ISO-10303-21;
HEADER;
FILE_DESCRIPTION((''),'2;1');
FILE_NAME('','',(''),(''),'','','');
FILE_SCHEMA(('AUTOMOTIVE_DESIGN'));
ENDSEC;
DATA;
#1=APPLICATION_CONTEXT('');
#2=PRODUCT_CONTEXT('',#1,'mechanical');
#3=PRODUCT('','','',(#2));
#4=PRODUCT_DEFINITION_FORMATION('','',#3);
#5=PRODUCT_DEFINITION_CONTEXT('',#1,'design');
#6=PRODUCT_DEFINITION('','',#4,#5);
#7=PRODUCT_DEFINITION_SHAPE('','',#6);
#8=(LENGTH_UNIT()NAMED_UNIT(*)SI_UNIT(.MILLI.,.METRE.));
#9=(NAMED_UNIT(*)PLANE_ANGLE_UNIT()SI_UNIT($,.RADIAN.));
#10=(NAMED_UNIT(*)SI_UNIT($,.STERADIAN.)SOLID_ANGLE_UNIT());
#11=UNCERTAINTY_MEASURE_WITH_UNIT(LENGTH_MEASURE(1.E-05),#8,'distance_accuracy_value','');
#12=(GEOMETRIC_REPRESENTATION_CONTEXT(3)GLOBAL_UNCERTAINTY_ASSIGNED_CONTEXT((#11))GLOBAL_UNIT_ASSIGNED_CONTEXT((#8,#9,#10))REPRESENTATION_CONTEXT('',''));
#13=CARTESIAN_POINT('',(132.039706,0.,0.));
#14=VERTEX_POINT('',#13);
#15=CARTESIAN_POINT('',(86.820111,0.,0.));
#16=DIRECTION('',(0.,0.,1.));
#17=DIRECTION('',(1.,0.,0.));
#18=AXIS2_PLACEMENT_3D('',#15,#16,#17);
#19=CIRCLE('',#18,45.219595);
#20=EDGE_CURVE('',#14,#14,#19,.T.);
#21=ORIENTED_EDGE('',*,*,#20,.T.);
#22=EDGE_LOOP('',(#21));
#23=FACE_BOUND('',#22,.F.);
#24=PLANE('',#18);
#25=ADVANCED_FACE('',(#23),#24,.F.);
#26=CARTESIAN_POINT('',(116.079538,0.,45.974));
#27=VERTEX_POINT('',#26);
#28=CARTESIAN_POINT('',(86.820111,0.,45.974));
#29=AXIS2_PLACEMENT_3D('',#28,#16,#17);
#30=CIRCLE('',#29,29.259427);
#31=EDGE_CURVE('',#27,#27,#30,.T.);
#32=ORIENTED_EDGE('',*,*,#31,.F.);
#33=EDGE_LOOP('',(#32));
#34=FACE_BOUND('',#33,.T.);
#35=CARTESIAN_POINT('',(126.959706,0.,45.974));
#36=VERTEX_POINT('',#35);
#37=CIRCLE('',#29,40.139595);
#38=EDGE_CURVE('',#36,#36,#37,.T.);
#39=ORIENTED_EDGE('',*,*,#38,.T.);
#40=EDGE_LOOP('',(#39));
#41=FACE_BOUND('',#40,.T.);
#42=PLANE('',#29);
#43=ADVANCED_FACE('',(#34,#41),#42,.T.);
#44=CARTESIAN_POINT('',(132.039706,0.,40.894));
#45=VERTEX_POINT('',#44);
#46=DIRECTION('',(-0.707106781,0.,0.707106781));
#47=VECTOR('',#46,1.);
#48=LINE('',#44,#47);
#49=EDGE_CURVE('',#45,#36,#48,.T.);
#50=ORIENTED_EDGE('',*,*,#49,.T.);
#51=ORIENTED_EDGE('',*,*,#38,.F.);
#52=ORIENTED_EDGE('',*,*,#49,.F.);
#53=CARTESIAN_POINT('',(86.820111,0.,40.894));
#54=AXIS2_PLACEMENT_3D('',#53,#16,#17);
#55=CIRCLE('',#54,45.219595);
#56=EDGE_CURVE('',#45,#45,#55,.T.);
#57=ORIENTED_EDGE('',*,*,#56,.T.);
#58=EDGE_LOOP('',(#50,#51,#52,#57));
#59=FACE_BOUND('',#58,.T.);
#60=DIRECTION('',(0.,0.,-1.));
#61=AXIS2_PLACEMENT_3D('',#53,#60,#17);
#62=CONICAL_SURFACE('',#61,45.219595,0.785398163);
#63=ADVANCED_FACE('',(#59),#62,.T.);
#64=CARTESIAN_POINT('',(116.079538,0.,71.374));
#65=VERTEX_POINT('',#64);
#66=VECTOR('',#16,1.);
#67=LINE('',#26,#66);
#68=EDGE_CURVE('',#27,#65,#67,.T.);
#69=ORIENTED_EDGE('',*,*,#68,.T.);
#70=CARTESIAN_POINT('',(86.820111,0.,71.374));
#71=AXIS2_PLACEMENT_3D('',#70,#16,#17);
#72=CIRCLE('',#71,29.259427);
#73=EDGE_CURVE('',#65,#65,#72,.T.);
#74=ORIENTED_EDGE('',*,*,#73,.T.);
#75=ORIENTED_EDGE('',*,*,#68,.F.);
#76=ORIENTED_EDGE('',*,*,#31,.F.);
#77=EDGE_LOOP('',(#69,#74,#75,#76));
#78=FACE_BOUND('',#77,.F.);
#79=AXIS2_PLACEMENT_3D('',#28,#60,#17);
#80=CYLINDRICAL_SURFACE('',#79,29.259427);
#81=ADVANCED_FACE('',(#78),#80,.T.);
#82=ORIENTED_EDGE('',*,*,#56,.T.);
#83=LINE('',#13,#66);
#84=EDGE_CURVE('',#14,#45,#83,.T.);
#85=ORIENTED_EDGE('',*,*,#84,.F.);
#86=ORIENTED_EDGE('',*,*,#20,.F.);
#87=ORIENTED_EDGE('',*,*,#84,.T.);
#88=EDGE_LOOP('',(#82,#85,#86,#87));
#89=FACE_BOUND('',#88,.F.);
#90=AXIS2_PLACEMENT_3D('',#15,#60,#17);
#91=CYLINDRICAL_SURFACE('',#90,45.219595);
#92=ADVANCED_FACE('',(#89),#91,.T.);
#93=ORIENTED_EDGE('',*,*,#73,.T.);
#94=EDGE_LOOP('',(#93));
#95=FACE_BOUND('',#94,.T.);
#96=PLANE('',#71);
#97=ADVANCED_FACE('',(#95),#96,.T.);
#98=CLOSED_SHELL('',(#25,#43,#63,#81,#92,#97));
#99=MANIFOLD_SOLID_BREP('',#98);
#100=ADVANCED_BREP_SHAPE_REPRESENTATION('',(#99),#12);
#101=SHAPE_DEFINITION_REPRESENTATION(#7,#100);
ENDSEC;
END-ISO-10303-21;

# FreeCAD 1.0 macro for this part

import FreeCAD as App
import Part
import Sketcher
from FreeCAD import Vector
Q = App.Units.Quantity


def edges_at(feature, points):
    """Names of the edges that pass closest to the given points."""
    edges = feature.Shape.Edges
    near = lambda p: min(range(len(edges)), key=lambda i: edges[i].distToShape(Part.Vertex(*p))[0])
    return sorted({f"Edge{near(p) + 1}" for p in points})

doc = App.newDocument("Part")
body = doc.addObject("PartDesign::Body", "Body")

sketch1 = body.newObject("Sketcher::SketchObject", "Sketch")
sketch1.AttachmentSupport = (doc.getObject("XY_Plane"), [""])
sketch1.MapMode = "FlatFace"
sketch1.addGeometry(Part.Circle(Vector(87, 0, 0), Vector(0, 0, 1), 45), False)
sketch1.addConstraint([
    Sketcher.Constraint("PointOnObject", 0, 3, -1),
    Sketcher.Constraint("Diameter", 0, 90.43919),
    Sketcher.Constraint("DistanceX", -1, 1, 0, 3, 86.820111),
])
pad1 = body.newObject("PartDesign::Pad", "Pad")
pad1.Profile = sketch1
pad1.Length = Q("1.81 in")
doc.recompute()

chamfer = body.newObject("PartDesign::Chamfer", "Chamfer")
chamfer.Base = (pad1, edges_at(pad1, [(41.601, 0, 45.974)]))
chamfer.Size = Q("0.2 in")

sketch2 = body.newObject("Sketcher::SketchObject", "Sketch001")
sketch2.AttachmentSupport = (doc.getObject("XY_Plane"), [""])
sketch2.MapMode = "FlatFace"
sketch2.AttachmentOffset = App.Placement(Vector(0, 0, 1.81 * 25.4), App.Rotation())
sketch2.addGeometry(Part.Circle(Vector(87, 0, 0), Vector(0, 0, 1), 29), False)
sketch2.addConstraint([
    Sketcher.Constraint("PointOnObject", 0, 3, -1),
    Sketcher.Constraint("Diameter", 0, 58.518854),
    Sketcher.Constraint("DistanceX", -1, 1, 0, 3, 86.820111),
])
pad2 = body.newObject("PartDesign::Pad", "Pad001")
pad2.Profile = sketch2
pad2.Length = Q("1 in")

doc.recompute()
